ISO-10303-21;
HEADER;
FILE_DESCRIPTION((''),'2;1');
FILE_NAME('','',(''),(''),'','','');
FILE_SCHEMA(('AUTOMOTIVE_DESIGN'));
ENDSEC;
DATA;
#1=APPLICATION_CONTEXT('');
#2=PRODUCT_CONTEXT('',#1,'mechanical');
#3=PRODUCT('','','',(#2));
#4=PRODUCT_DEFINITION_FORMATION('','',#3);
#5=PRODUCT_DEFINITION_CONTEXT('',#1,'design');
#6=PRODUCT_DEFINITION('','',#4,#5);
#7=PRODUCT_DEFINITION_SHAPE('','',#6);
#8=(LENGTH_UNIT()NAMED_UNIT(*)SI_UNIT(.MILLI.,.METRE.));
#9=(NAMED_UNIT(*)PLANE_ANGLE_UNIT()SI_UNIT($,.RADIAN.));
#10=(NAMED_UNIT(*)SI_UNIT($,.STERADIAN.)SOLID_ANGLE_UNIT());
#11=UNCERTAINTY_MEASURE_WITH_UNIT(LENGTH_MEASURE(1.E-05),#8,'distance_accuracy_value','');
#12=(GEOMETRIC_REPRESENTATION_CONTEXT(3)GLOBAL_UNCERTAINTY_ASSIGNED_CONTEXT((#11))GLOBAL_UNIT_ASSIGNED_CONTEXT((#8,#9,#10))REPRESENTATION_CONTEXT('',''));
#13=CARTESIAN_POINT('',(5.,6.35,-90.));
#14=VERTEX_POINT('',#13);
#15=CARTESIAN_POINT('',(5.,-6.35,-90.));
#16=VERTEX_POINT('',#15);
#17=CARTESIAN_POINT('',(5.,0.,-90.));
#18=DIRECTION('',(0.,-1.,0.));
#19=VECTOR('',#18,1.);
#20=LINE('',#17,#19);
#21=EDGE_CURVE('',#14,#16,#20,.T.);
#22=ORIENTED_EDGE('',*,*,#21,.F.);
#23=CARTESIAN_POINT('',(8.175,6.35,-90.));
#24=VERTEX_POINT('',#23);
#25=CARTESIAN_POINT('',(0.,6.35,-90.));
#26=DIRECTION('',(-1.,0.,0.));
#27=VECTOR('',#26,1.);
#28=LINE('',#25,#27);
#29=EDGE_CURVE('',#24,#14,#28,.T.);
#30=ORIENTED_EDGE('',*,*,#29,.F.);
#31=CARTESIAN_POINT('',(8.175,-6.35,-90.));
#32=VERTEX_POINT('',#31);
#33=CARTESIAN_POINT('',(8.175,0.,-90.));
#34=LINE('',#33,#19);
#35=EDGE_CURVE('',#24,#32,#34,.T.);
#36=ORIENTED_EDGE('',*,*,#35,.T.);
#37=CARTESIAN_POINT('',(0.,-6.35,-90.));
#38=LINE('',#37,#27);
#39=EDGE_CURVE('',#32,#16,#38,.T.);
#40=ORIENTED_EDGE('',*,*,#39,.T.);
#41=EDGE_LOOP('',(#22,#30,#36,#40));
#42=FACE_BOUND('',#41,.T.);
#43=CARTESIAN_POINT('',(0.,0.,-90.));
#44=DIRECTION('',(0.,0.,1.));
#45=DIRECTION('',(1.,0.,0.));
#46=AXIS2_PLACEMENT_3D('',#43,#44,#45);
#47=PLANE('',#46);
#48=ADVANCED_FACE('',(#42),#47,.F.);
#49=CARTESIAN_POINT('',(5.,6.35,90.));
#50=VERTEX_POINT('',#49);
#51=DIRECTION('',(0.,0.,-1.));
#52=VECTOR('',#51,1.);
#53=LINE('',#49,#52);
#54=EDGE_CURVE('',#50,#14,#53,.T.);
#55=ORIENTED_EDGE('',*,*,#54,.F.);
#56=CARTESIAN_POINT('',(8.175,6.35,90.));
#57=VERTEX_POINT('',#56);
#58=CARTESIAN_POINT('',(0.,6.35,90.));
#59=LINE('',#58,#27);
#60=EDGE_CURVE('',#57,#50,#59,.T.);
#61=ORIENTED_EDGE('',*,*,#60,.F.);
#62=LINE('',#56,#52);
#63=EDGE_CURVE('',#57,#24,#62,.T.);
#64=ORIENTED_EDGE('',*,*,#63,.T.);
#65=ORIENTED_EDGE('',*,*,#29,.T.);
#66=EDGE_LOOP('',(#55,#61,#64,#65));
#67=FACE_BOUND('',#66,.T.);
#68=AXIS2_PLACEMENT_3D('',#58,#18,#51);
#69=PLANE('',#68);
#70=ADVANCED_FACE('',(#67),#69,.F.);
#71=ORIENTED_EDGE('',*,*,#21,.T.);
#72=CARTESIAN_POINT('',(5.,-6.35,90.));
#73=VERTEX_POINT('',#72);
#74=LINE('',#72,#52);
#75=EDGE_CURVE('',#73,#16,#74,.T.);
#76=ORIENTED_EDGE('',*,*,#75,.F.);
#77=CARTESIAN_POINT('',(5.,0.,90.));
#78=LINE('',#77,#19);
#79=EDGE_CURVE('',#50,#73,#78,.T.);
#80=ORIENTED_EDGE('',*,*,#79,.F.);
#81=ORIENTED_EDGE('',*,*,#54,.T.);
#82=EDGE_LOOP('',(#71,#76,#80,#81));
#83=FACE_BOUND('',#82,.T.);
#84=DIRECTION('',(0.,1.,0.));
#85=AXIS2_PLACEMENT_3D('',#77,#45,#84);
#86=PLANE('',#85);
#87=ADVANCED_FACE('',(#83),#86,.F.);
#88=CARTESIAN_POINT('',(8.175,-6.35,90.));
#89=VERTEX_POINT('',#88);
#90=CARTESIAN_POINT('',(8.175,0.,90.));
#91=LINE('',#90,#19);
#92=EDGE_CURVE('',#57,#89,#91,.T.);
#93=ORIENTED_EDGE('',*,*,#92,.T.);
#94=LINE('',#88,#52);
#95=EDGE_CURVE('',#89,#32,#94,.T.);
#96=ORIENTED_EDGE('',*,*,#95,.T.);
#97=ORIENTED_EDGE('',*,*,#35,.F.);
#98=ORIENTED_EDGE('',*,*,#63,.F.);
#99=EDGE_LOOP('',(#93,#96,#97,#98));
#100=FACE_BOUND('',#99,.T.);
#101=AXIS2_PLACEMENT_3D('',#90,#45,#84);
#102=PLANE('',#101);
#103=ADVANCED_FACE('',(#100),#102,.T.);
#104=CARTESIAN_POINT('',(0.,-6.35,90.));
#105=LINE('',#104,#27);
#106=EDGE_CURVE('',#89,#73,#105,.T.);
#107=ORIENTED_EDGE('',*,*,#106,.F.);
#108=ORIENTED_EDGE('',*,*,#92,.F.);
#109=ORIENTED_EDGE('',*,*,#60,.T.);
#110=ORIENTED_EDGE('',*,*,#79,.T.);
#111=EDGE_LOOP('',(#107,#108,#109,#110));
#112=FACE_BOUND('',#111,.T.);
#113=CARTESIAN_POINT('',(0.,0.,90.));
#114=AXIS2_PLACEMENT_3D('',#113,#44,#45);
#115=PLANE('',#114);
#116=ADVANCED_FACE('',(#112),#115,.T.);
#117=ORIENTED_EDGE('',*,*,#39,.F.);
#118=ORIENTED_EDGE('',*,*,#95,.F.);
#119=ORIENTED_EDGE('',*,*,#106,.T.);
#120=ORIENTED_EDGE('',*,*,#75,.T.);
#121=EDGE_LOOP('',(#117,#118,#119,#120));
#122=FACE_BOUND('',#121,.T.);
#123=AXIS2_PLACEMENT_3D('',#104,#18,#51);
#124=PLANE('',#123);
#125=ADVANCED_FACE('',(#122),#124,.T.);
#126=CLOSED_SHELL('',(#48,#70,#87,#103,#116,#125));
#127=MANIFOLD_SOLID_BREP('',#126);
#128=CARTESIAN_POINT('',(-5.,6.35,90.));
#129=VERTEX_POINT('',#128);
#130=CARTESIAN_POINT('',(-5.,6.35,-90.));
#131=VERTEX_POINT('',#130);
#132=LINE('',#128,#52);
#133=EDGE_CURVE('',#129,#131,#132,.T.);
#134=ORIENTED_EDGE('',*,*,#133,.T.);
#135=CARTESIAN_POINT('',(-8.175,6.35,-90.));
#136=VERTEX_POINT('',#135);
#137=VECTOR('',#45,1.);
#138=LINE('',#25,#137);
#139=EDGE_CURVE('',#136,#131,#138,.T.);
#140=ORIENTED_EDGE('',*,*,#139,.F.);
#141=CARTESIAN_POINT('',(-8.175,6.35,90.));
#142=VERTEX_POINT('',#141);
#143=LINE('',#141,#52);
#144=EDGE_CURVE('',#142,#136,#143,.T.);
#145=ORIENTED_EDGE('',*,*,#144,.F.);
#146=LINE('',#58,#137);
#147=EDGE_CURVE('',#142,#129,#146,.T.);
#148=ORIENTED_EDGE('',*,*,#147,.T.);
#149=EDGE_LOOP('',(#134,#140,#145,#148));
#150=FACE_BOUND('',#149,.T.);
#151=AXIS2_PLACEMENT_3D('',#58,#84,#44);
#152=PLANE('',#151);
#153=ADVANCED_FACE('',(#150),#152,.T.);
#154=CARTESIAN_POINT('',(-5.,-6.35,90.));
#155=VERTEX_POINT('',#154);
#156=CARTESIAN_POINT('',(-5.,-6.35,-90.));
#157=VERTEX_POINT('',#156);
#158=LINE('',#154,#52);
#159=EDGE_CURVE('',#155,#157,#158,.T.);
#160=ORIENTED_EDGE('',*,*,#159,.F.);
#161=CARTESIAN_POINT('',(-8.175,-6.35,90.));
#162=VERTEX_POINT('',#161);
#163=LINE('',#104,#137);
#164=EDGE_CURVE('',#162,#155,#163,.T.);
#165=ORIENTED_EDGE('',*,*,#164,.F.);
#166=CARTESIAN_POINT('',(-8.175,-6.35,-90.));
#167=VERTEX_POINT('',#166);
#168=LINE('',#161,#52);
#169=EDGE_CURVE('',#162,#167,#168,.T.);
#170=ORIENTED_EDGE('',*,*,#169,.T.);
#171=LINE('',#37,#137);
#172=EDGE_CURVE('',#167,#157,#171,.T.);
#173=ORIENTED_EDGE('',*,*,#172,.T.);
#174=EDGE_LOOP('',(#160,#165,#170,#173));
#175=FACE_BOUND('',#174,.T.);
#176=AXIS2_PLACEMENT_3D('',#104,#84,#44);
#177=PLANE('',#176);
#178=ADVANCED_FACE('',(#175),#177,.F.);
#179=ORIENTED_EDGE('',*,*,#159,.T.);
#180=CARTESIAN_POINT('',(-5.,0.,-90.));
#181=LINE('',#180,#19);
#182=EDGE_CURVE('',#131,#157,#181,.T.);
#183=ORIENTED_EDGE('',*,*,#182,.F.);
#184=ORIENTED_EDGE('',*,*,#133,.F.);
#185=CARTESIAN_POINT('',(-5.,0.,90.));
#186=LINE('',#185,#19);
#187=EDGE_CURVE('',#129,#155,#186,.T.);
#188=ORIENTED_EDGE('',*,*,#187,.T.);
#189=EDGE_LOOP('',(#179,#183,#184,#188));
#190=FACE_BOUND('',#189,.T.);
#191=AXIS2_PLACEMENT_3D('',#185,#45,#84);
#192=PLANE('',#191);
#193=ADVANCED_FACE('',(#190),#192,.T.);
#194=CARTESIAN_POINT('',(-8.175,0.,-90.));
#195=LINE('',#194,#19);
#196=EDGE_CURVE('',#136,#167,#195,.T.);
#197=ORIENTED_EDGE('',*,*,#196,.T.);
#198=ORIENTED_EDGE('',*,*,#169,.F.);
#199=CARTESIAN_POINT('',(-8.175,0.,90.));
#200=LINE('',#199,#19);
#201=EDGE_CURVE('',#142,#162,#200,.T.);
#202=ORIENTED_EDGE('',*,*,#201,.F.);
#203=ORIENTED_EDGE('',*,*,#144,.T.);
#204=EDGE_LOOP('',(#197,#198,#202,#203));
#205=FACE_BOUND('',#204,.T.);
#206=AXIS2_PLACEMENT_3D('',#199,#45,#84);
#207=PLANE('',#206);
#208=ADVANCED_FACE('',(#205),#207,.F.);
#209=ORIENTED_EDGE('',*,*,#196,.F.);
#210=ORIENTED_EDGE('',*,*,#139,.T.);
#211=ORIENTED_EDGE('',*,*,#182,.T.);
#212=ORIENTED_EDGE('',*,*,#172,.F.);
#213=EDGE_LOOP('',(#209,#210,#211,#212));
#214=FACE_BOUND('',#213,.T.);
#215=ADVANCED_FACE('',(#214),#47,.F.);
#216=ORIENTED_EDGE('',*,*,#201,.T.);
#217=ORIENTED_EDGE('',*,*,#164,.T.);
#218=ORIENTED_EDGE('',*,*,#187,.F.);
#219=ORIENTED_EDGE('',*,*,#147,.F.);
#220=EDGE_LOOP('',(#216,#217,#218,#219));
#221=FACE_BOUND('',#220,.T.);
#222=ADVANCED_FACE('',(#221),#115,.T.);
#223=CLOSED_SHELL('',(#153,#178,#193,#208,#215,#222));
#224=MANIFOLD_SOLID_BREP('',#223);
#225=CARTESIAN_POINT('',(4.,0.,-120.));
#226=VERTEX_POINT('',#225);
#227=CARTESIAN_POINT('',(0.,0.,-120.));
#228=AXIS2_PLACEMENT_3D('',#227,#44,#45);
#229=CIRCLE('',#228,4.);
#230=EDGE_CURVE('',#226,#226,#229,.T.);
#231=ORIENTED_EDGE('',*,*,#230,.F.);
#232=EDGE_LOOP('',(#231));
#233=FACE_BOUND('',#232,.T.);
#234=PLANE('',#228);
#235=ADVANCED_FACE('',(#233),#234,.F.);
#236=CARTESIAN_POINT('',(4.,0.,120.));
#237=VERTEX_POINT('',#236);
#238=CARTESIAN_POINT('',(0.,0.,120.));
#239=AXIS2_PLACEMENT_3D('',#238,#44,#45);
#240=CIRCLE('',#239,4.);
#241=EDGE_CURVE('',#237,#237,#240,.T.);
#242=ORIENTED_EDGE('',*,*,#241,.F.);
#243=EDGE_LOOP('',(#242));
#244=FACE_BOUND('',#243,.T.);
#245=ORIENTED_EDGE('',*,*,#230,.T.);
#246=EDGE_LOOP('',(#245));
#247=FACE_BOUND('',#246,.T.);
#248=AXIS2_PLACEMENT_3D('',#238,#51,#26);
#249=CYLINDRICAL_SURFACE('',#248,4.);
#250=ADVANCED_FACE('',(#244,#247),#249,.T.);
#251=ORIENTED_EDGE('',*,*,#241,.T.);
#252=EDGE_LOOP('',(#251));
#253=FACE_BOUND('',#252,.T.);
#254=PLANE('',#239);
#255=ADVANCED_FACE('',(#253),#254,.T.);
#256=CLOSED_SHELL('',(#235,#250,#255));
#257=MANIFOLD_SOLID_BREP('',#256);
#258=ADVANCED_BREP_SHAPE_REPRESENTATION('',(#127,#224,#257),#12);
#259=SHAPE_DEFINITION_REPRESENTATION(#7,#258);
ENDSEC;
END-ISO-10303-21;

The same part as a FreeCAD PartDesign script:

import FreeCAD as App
import Part
import Sketcher

V = App.Vector


def add_polygon(sketch, points):
    """Adds a closed chain of lines whose ends are joined by coincident constraints."""
    first, n = sketch.GeometryCount, len(points)
    for a, b in zip(points, points[1:] + points[:1]):
        sketch.addGeometry(Part.LineSegment(App.Vector(*a, 0), App.Vector(*b, 0)), False)
    for i in range(n):
        sketch.addConstraint(Sketcher.Constraint("Coincident", first + i, 2, first + (i + 1) % n, 1))

doc = App.newDocument("Part")
body = doc.addObject("PartDesign::Body", "Body")

sketch1 = body.newObject("Sketcher::SketchObject", "Sketch")
sketch1.AttachmentSupport = (doc.getObject("XY_Plane"), [""])
sketch1.MapMode = "FlatFace"
add_polygon(sketch1, [(5, 6.3), (5, -6.3), (8.2, -6.3), (8.2, 6.3)])
sketch1.addConstraint([
    Sketcher.Constraint("Vertical", 0),
    Sketcher.Constraint("Horizontal", 1),
    Sketcher.Constraint("Vertical", 2),
    Sketcher.Constraint("Horizontal", 3),
    Sketcher.Constraint("DistanceY", 0, 2, 0, 1, 12.7),
    Sketcher.Constraint("DistanceX", -1, 1, 0, 2, 5.0),
    Sketcher.Constraint("DistanceX", 1, 1, 1, 2, 3.175),
    Sketcher.Constraint("DistanceY", 0, 2, -1, 1, 6.35),
])
pad1 = body.newObject("PartDesign::Pad", "Pad")
pad1.Profile = sketch1
pad1.Length = 180
pad1.Midplane = True
body2 = doc.addObject("PartDesign::Body", "Body001")

sketch2 = body2.newObject("Sketcher::SketchObject", "Sketch001")
sketch2.AttachmentSupport = (doc.getObject("XY_Plane001"), [""])
sketch2.MapMode = "FlatFace"
add_polygon(sketch2, [(-8.2, 6.3), (-8.2, -6.3), (-5, -6.3), (-5, 6.3)])
sketch2.addConstraint([
    Sketcher.Constraint("Vertical", 0),
    Sketcher.Constraint("Horizontal", 1),
    Sketcher.Constraint("Vertical", 2),
    Sketcher.Constraint("Horizontal", 3),
    Sketcher.Constraint("DistanceY", 0, 2, 0, 1, 12.7),
    Sketcher.Constraint("DistanceX", 1, 2, -1, 1, 5.0),
    Sketcher.Constraint("DistanceX", 1, 1, 1, 2, 3.175),
    Sketcher.Constraint("DistanceY", 0, 2, -1, 1, 6.35),
])
pad2 = body2.newObject("PartDesign::Pad", "Pad001")
pad2.Profile = sketch2
pad2.Length = 180
pad2.Midplane = True
body3 = doc.addObject("PartDesign::Body", "Body002")

sketch3 = body3.newObject("Sketcher::SketchObject", "Sketch002")
sketch3.AttachmentSupport = (doc.getObject("XY_Plane002"), [""])
sketch3.MapMode = "FlatFace"
sketch3.addGeometry(Part.Circle(V(0, 0, 0), V(0, 0, 1), 4), False)
sketch3.addConstraint([
    Sketcher.Constraint("Coincident", 0, 3, -1, 1),
    Sketcher.Constraint("Diameter", 0, 8.0),
])
pad3 = body3.newObject("PartDesign::Pad", "Pad002")
pad3.Profile = sketch3
pad3.Length = 240
pad3.Midplane = True

doc.recompute()
